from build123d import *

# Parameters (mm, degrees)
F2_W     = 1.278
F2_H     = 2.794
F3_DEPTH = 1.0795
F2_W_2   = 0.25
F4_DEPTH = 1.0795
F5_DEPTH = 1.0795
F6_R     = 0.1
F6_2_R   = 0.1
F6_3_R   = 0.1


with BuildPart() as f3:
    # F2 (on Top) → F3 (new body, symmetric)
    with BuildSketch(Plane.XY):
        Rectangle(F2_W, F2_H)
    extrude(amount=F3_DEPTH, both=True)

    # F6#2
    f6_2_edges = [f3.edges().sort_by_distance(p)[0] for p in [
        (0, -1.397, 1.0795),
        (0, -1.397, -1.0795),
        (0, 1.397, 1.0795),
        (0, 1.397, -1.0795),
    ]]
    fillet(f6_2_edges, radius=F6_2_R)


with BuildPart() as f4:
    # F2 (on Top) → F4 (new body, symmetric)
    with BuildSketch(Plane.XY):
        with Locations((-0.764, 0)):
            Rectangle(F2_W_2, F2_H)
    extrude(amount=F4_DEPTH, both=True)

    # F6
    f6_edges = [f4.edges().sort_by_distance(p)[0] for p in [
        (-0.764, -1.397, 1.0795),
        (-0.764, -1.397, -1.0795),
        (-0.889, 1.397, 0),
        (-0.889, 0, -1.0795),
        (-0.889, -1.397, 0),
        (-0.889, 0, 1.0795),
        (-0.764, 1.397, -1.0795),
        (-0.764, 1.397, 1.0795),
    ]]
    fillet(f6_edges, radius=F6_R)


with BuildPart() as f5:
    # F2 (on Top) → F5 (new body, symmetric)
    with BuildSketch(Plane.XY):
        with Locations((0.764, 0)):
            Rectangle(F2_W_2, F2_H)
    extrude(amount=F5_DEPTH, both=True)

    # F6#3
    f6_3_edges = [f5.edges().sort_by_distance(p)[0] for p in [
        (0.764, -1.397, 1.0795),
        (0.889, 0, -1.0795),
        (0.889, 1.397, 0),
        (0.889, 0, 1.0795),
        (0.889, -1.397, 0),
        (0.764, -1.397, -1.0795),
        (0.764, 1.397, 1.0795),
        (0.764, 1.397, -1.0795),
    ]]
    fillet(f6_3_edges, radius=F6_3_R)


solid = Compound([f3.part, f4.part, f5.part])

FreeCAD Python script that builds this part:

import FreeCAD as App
import Part
import Sketcher
from FreeCAD import Vector
Q = App.Units.Quantity


def edges_at(feature, points):
    """Names of the edges that pass closest to the given points."""
    edges = feature.Shape.Edges
    near = lambda p: min(range(len(edges)), key=lambda i: edges[i].distToShape(Part.Vertex(*p))[0])
    return sorted({f"Edge{near(p) + 1}" for p in points})


def add_polygon(sketch, points):
    """Adds a closed chain of lines whose ends are joined by coincident constraints."""
    first, n = sketch.GeometryCount, len(points)
    for a, b in zip(points, points[1:] + points[:1]):
        sketch.addGeometry(Part.LineSegment(App.Vector(*a, 0), App.Vector(*b, 0)), False)
    for i in range(n):
        sketch.addConstraint(Sketcher.Constraint("Coincident", first + i, 2, first + (i + 1) % n, 1))

doc = App.newDocument("Part")
body = doc.addObject("PartDesign::Body", "Body")

# Sketch on XY plane
sketch1 = doc.addObject("Sketcher::SketchObject", "Sketch")
body.addObject(sketch1)
sketch1.AttachmentSupport = (doc.XY_Plane, [""])
sketch1.MapMode = "FlatFace"
add_polygon(sketch1, [(-0.639, 1.397), (-0.639, -1.397), (0.639, -1.397), (0.639, 1.397)])  # lines 0-3
sketch1.addConstraint([
    Sketcher.Constraint("Vertical", 0),
    Sketcher.Constraint("Horizontal", 1),
    Sketcher.Constraint("Vertical", 2),
    Sketcher.Constraint("Horizontal", 3),
    Sketcher.Constraint("Symmetric", 0, 2, 2, 2, -1, 1),
    Sketcher.Constraint("DistanceX", 1, 1, 1, 2, Q("1.278 mm")),
    Sketcher.Constraint("DistanceY", 0, 2, 0, 1, Q("2.794 mm")),
])
pad1 = doc.addObject("PartDesign::Pad", "Pad")
body.addObject(pad1)
pad1.Profile = sketch1
pad1.Length = 2.159
pad1.Midplane = True
doc.recompute()

fillet = doc.addObject("PartDesign::Fillet", "Fillet")
body.addObject(fillet)
fillet.Base = (pad1, edges_at(pad1, [
    (0, -1.397, 1.079),
    (0, -1.397, -1.079),
    (0, 1.397, 1.079),
    (0, 1.397, -1.079),
]))
fillet.Radius = 0.1
body2 = doc.addObject("PartDesign::Body", "Body001")

# Sketch on XY plane
sketch2 = doc.addObject("Sketcher::SketchObject", "Sketch001")
body2.addObject(sketch2)
sketch2.AttachmentSupport = (doc.getObject("XY_Plane001"), [""])
sketch2.MapMode = "FlatFace"
add_polygon(sketch2, [(-0.889, 1.397), (-0.889, -1.397), (-0.639, -1.397), (-0.639, 1.397)])  # lines 0-3
sketch2.addConstraint([
    Sketcher.Constraint("Vertical", 0),
    Sketcher.Constraint("Horizontal", 1),
    Sketcher.Constraint("Vertical", 2),
    Sketcher.Constraint("Horizontal", 3),
    Sketcher.Constraint("DistanceX", 1, 1, 1, 2, Q("0.25 mm")),
    Sketcher.Constraint("DistanceY", 0, 2, 0, 1, Q("2.794 mm")),
    Sketcher.Constraint("DistanceX", 0, 2, -1, 1, Q("0.889 mm")),
    Sketcher.Constraint("DistanceY", 0, 2, -1, 1, Q("1.397 mm")),
])
pad2 = doc.addObject("PartDesign::Pad", "Pad001")
body2.addObject(pad2)
pad2.Profile = sketch2
pad2.Length = 2.159
pad2.Midplane = True
doc.recompute()

fillet2 = doc.addObject("PartDesign::Fillet", "Fillet001")
body2.addObject(fillet2)
fillet2.Base = (pad2, edges_at(pad2, [
    (-0.764, -1.397, 1.079),
    (-0.764, -1.397, -1.079),
    (-0.889, 1.397, 0),
    (-0.889, 0, -1.079),
    (-0.889, -1.397, 0),
    (-0.889, 0, 1.079),
    (-0.764, 1.397, -1.079),
    (-0.764, 1.397, 1.079),
]))
fillet2.Radius = 0.1
body3 = doc.addObject("PartDesign::Body", "Body002")

# Sketch on XY plane
sketch3 = doc.addObject("Sketcher::SketchObject", "Sketch002")
body3.addObject(sketch3)
sketch3.AttachmentSupport = (doc.getObject("XY_Plane002"), [""])
sketch3.MapMode = "FlatFace"
add_polygon(sketch3, [(0.639, 1.397), (0.639, -1.397), (0.889, -1.397), (0.889, 1.397)])  # lines 0-3
sketch3.addConstraint([
    Sketcher.Constraint("Vertical", 0),
    Sketcher.Constraint("Horizontal", 1),
    Sketcher.Constraint("Vertical", 2),
    Sketcher.Constraint("Horizontal", 3),
    Sketcher.Constraint("DistanceX", 1, 1, 1, 2, Q("0.25 mm")),
    Sketcher.Constraint("DistanceY", 0, 2, 0, 1, Q("2.794 mm")),
    Sketcher.Constraint("DistanceX", -1, 1, 0, 2, Q("0.639 mm")),
    Sketcher.Constraint("DistanceY", 0, 2, -1, 1, Q("1.397 mm")),
])
pad3 = doc.addObject("PartDesign::Pad", "Pad002")
body3.addObject(pad3)
pad3.Profile = sketch3
pad3.Length = 2.159
pad3.Midplane = True
doc.recompute()

fillet3 = doc.addObject("PartDesign::Fillet", "Fillet002")
body3.addObject(fillet3)
fillet3.Base = (pad3, edges_at(pad3, [
    (0.764, -1.397, 1.079),
    (0.889, 0, -1.079),
    (0.889, 1.397, 0),
    (0.889, 0, 1.079),
    (0.889, -1.397, 0),
    (0.764, -1.397, -1.079),
    (0.764, 1.397, 1.079),
    (0.764, 1.397, -1.079),
]))
fillet3.Radius = 0.1

doc.recompute()
